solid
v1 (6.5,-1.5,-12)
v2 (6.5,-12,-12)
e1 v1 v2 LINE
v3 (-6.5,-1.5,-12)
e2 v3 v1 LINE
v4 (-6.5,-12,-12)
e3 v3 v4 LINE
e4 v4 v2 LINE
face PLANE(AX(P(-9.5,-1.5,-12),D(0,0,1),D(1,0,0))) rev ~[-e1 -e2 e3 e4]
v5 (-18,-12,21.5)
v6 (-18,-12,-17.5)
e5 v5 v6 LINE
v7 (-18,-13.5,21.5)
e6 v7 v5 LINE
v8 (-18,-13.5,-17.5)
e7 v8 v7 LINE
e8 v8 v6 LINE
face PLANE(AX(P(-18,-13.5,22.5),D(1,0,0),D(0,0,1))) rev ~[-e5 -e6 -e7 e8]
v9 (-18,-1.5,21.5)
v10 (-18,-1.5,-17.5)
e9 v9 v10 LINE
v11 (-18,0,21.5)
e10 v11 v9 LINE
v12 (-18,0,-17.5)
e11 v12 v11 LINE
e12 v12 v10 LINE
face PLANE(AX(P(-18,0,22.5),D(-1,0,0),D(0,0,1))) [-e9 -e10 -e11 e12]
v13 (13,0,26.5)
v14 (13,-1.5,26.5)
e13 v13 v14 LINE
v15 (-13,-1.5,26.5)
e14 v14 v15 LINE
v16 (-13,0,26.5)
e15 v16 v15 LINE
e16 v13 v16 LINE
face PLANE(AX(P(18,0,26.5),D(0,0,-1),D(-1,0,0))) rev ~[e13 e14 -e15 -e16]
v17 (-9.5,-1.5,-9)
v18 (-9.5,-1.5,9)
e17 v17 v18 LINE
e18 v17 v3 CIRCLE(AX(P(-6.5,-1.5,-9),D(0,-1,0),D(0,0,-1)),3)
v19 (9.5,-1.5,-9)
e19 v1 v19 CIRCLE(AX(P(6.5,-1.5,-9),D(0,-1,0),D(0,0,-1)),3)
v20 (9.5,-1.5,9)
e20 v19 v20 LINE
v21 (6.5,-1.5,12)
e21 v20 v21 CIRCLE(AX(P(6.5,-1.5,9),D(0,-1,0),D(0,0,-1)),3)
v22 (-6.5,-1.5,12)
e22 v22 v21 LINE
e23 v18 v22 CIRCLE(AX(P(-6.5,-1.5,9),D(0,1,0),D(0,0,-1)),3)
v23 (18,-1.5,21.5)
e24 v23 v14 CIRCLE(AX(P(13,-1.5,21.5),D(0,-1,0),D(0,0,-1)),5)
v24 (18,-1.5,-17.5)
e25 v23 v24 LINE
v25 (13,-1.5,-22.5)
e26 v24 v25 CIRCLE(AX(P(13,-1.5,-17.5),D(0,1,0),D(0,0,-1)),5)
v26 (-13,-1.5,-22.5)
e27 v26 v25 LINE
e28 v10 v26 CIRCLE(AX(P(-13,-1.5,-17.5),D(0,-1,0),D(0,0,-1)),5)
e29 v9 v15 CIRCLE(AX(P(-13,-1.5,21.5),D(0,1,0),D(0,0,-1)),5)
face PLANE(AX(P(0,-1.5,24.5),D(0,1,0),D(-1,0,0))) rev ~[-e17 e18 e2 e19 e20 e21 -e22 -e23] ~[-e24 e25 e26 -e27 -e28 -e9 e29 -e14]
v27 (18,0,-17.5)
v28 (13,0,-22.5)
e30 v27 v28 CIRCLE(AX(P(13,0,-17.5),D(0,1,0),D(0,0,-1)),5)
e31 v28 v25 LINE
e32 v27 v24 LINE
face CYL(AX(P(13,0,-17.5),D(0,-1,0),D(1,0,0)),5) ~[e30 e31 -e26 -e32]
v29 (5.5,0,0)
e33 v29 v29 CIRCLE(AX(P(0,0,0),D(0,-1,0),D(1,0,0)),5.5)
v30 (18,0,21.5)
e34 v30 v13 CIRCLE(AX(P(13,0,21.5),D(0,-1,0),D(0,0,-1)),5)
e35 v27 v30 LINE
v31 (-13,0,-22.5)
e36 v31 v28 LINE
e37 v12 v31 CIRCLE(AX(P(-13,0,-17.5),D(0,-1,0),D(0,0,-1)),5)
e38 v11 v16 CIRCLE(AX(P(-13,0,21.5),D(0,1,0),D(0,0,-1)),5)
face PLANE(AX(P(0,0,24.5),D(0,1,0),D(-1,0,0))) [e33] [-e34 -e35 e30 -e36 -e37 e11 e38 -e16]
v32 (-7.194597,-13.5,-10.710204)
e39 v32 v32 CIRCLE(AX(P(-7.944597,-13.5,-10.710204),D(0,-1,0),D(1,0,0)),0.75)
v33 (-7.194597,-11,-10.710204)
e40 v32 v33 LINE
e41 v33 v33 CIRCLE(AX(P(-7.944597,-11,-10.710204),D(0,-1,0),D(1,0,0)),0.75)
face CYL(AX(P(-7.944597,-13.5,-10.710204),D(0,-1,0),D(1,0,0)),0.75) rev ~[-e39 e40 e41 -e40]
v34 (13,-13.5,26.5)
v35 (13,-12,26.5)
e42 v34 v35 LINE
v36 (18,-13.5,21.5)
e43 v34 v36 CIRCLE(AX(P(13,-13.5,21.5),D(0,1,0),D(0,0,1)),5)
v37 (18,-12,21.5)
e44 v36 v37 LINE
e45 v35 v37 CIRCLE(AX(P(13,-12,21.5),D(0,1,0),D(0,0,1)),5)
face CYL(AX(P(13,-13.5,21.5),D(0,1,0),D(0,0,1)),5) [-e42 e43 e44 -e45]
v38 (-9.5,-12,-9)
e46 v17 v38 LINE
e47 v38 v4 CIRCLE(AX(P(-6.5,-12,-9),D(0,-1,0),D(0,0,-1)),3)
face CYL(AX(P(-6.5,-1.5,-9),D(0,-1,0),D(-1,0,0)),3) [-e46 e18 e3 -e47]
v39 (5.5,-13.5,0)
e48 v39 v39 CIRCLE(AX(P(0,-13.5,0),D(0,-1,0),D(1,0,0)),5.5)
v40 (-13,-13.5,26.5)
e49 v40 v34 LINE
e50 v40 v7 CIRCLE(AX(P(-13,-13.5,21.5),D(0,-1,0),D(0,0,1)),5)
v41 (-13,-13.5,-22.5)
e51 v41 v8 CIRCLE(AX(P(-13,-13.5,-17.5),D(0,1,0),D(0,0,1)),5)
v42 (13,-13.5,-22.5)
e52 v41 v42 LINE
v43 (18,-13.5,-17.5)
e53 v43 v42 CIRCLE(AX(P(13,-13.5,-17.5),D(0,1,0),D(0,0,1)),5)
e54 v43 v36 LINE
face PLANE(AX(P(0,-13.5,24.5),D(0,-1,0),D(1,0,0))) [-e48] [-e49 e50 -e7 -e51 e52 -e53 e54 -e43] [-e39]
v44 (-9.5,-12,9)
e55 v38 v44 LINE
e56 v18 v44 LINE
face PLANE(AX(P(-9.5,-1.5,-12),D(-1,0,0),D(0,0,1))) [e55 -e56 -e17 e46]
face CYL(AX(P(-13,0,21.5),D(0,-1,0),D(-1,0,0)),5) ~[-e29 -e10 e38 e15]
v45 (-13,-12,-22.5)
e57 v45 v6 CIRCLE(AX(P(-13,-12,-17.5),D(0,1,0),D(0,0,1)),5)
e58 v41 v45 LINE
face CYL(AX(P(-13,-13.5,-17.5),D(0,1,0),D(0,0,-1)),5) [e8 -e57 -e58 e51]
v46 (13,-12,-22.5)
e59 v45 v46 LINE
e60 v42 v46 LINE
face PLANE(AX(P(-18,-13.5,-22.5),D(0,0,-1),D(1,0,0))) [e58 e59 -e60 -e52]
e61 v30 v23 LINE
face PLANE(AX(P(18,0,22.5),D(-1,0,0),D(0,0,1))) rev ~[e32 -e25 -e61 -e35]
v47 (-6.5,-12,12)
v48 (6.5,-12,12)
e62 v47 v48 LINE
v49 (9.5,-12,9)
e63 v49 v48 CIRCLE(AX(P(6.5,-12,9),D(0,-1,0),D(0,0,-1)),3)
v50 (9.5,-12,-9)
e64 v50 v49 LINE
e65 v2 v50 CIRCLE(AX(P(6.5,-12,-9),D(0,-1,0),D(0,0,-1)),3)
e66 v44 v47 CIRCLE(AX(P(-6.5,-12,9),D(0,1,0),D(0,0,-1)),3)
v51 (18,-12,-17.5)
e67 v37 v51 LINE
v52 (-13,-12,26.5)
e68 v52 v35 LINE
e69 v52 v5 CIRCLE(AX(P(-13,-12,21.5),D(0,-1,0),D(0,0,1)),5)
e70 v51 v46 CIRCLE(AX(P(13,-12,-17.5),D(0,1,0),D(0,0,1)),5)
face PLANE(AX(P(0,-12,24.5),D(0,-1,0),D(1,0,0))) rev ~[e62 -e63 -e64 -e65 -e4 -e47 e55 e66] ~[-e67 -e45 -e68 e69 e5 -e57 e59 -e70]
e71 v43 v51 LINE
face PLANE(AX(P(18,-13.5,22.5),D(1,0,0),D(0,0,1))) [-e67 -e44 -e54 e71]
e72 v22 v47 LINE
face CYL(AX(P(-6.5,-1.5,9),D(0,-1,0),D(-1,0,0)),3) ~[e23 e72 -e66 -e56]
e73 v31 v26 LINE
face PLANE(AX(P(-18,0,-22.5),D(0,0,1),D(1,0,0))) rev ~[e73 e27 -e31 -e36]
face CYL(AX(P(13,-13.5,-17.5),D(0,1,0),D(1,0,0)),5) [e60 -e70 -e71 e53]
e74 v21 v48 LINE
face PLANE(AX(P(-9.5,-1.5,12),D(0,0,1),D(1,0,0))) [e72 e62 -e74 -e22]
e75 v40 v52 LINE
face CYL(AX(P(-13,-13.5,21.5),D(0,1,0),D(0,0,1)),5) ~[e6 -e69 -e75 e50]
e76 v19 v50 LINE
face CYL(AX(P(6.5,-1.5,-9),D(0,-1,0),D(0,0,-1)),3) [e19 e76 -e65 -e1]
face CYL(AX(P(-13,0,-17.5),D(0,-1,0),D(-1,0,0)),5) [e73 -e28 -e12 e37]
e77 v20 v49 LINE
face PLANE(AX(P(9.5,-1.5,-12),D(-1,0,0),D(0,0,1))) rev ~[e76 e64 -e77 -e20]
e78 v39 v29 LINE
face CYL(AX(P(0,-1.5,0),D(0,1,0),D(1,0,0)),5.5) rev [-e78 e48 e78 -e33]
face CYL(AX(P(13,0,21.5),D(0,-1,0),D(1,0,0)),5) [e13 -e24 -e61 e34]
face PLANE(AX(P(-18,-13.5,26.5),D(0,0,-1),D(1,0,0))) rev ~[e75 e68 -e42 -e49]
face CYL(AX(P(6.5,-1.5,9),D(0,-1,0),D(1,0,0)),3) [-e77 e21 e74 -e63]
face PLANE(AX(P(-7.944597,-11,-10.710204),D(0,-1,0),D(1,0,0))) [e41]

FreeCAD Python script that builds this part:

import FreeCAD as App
import Part
import Sketcher
Q = App.Units.Quantity


def edges_at(feature, points):
    """Names of the edges that pass closest to the given points."""
    edges = feature.Shape.Edges
    near = lambda p: min(range(len(edges)), key=lambda i: edges[i].distToShape(Part.Vertex(*p))[0])
    return sorted({f"Edge{near(p) + 1}" for p in points})

doc = App.newDocument("Part")
body = doc.addObject("PartDesign::Body", "Body")

# Sketch on XZ plane
sketch1 = doc.addObject("Sketcher::SketchObject", "Sketch")
body.addObject(sketch1)
sketch1.AttachmentSupport = (doc.XZ_Plane, [""])
sketch1.MapMode = "FlatFace"
sketch1.addGeometry([
    Part.LineSegment(App.Vector(-18, 22, 0), App.Vector(-18, -22, 0)),  # 0
    Part.LineSegment(App.Vector(-18, -22, 0), App.Vector(18, -22, 0)),  # 1
    Part.LineSegment(App.Vector(18, -22, 0), App.Vector(18, 22, 0)),  # 2
    Part.LineSegment(App.Vector(18, 22, 0), App.Vector(-18, 22, 0)),  # 3
    Part.Circle(App.Vector(0, 0, 0), App.Vector(0, 0, 1), 6),  # 4
], False)
sketch1.addConstraint([
    Sketcher.Constraint("Coincident", 0, 2, 1, 1),
    Sketcher.Constraint("Coincident", 1, 2, 2, 1),
    Sketcher.Constraint("Coincident", 2, 2, 3, 1),
    Sketcher.Constraint("Coincident", 3, 2, 0, 1),
    Sketcher.Constraint("Vertical", 0),
    Sketcher.Constraint("Horizontal", 1),
    Sketcher.Constraint("Vertical", 2),
    Sketcher.Constraint("Horizontal", 3),
    Sketcher.Constraint("Coincident", 4, 3, -1, 1),
    Sketcher.Constraint("Symmetric", 0, 2, 2, 2, -1, 1),
    Sketcher.Constraint("Diameter", 4, Q("11 mm")),
    Sketcher.Constraint("DistanceX", 1, 1, 1, 2, Q("36 mm")),
    Sketcher.Constraint("DistanceY", 0, 2, 0, 1, Q("45 mm")),
])
pad1 = doc.addObject("PartDesign::Pad", "Pad")
body.addObject(pad1)
pad1.Profile = sketch1
pad1.Length = 1.5

# Sketch on XZ plane
sketch2 = doc.addObject("Sketcher::SketchObject", "Sketch001")
body.addObject(sketch2)
sketch2.AttachmentSupport = (doc.XZ_Plane, [""])
sketch2.MapMode = "FlatFace"
sketch2.AttachmentOffset = App.Placement(App.Vector(0, 0, 1.5), App.Rotation())
sketch2.addGeometry([
    Part.LineSegment(App.Vector(-10, 12, 0), App.Vector(-10, -12, 0)),  # 0
    Part.LineSegment(App.Vector(-10, -12, 0), App.Vector(10, -12, 0)),  # 1
    Part.LineSegment(App.Vector(10, -12, 0), App.Vector(10, 12, 0)),  # 2
    Part.LineSegment(App.Vector(10, 12, 0), App.Vector(-10, 12, 0)),  # 3
    Part.Circle(App.Vector(0, 0, 0), App.Vector(0, 0, 1), 6),  # 4
], False)
sketch2.addConstraint([
    Sketcher.Constraint("Coincident", 0, 2, 1, 1),
    Sketcher.Constraint("Coincident", 1, 2, 2, 1),
    Sketcher.Constraint("Coincident", 2, 2, 3, 1),
    Sketcher.Constraint("Coincident", 3, 2, 0, 1),
    Sketcher.Constraint("Vertical", 0),
    Sketcher.Constraint("Horizontal", 1),
    Sketcher.Constraint("Vertical", 2),
    Sketcher.Constraint("Horizontal", 3),
    Sketcher.Constraint("Coincident", 4, 3, -1, 1),
    Sketcher.Constraint("Symmetric", 0, 2, 2, 2, -1, 1),
    Sketcher.Constraint("Diameter", 4, Q("11 mm")),
    Sketcher.Constraint("DistanceX", 1, 1, 1, 2, Q("19 mm")),
    Sketcher.Constraint("DistanceY", 0, 2, 0, 1, Q("24 mm")),
])
pad2 = doc.addObject("PartDesign::Pad", "Pad001")
body.addObject(pad2)
pad2.Profile = sketch2
pad2.Length = 12

# Sketch on XZ plane
sketch3 = doc.addObject("Sketcher::SketchObject", "Sketch002")
body.addObject(sketch3)
sketch3.AttachmentSupport = (doc.XZ_Plane, [""])
sketch3.MapMode = "FlatFace"
sketch3.AttachmentOffset = App.Placement(App.Vector(0, 0, 13.5), App.Rotation())
sketch3.addGeometry([
    Part.LineSegment(App.Vector(-18, 22, 0), App.Vector(-18, -22, 0)),  # 0
    Part.LineSegment(App.Vector(-18, -22, 0), App.Vector(18, -22, 0)),  # 1
    Part.LineSegment(App.Vector(18, -22, 0), App.Vector(18, 22, 0)),  # 2
    Part.LineSegment(App.Vector(18, 22, 0), App.Vector(-18, 22, 0)),  # 3
    Part.Circle(App.Vector(0, 0, 0), App.Vector(0, 0, 1), 6),  # 4
], False)
sketch3.addConstraint([
    Sketcher.Constraint("Coincident", 0, 2, 1, 1),
    Sketcher.Constraint("Coincident", 1, 2, 2, 1),
    Sketcher.Constraint("Coincident", 2, 2, 3, 1),
    Sketcher.Constraint("Coincident", 3, 2, 0, 1),
    Sketcher.Constraint("Vertical", 0),
    Sketcher.Constraint("Horizontal", 1),
    Sketcher.Constraint("Vertical", 2),
    Sketcher.Constraint("Horizontal", 3),
    Sketcher.Constraint("Coincident", 4, 3, -1, 1),
    Sketcher.Constraint("Symmetric", 0, 2, 2, 2, -1, 1),
    Sketcher.Constraint("Diameter", 4, Q("11 mm")),
    Sketcher.Constraint("DistanceX", 1, 1, 1, 2, Q("36 mm")),
    Sketcher.Constraint("DistanceY", 0, 2, 0, 1, Q("45 mm")),
])
pad3 = doc.addObject("PartDesign::Pad", "Pad002")
body.addObject(pad3)
pad3.Profile = sketch3
pad3.Length = 1.5
pad3.Reversed = True

# Sketch on XZ plane
sketch4 = doc.addObject("Sketcher::SketchObject", "Sketch003")
body.addObject(sketch4)
sketch4.AttachmentSupport = (doc.XZ_Plane, [""])
sketch4.MapMode = "FlatFace"
sketch4.AttachmentOffset = App.Placement(App.Vector(0, 0, 13.5), App.Rotation())
sketch4.addGeometry(Part.Circle(App.Vector(-7.9, -10.7, 0), App.Vector(0, 0, 1), 0.8), False)
sketch4.addConstraint([
    Sketcher.Constraint("Diameter", 0, Q("1.5 mm")),
    Sketcher.Constraint("DistanceX", 0, 3, -1, 1, Q("7.944597 mm")),
    Sketcher.Constraint("DistanceY", 0, 3, -1, 1, Q("10.710204 mm")),
])
pocket1 = doc.addObject("PartDesign::Pocket", "Pocket")
body.addObject(pocket1)
pocket1.Profile = sketch4
pocket1.Length = 2.5

# Sketch on XZ plane
sketch5 = doc.addObject("Sketcher::SketchObject", "Sketch004")
body.addObject(sketch5)
sketch5.AttachmentSupport = (doc.XZ_Plane, [""])
sketch5.MapMode = "FlatFace"
sketch5.AttachmentOffset = App.Placement(App.Vector(0, 0, 13.5), App.Rotation())
sketch5.addGeometry([
    Part.LineSegment(App.Vector(-18, 26.5, 0), App.Vector(-18, 22.5, 0)),
    Part.LineSegment(App.Vector(-18, 22.5, 0), App.Vector(18, 22.5, 0)),
    Part.LineSegment(App.Vector(18, 22.5, 0), App.Vector(18, 26.5, 0)),
    Part.LineSegment(App.Vector(18, 26.5, 0), App.Vector(-18, 26.5, 0)),
], False)
sketch5.addConstraint([
    Sketcher.Constraint("Coincident", 0, 2, 1, 1),
    Sketcher.Constraint("Coincident", 1, 2, 2, 1),
    Sketcher.Constraint("Coincident", 2, 2, 3, 1),
    Sketcher.Constraint("Coincident", 3, 2, 0, 1),
    Sketcher.Constraint("Vertical", 0),
    Sketcher.Constraint("Horizontal", 1),
    Sketcher.Constraint("Vertical", 2),
    Sketcher.Constraint("Horizontal", 3),
    Sketcher.Constraint("DistanceX", 1, 1, 1, 2, Q("36 mm")),
    Sketcher.Constraint("DistanceY", 0, 2, 0, 1, Q("4 mm")),
    Sketcher.Constraint("DistanceX", 0, 2, -1, 1, Q("18 mm")),
    Sketcher.Constraint("DistanceY", -1, 1, 0, 2, Q("22.5 mm")),
])
pad4 = doc.addObject("PartDesign::Pad", "Pad003")
body.addObject(pad4)
pad4.Profile = sketch5
pad4.Length = 1.5
pad4.Reversed = True

# Sketch on XZ plane
sketch6 = doc.addObject("Sketcher::SketchObject", "Sketch005")
body.addObject(sketch6)
sketch6.AttachmentSupport = (doc.XZ_Plane, [""])
sketch6.MapMode = "FlatFace"
sketch6.addGeometry([
    Part.LineSegment(App.Vector(18, 26.5, 0), App.Vector(18, 22.5, 0)),
    Part.LineSegment(App.Vector(18, 22.5, 0), App.Vector(-18, 22.5, 0)),
    Part.LineSegment(App.Vector(-18, 22.5, 0), App.Vector(-18, 26.5, 0)),
    Part.LineSegment(App.Vector(-18, 26.5, 0), App.Vector(18, 26.5, 0)),
], False)
sketch6.addConstraint([
    Sketcher.Constraint("Coincident", 0, 2, 1, 1),
    Sketcher.Constraint("Coincident", 1, 2, 2, 1),
    Sketcher.Constraint("Coincident", 2, 2, 3, 1),
    Sketcher.Constraint("Coincident", 3, 2, 0, 1),
    Sketcher.Constraint("Vertical", 0),
    Sketcher.Constraint("Horizontal", 1),
    Sketcher.Constraint("Vertical", 2),
    Sketcher.Constraint("Horizontal", 3),
    Sketcher.Constraint("DistanceX", 1, 2, 1, 1, Q("36 mm")),
    Sketcher.Constraint("DistanceY", 0, 2, 0, 1, Q("4 mm")),
    Sketcher.Constraint("DistanceX", -1, 1, 0, 2, Q("18 mm")),
    Sketcher.Constraint("DistanceY", -1, 1, 0, 2, Q("22.5 mm")),
])
pad5 = doc.addObject("PartDesign::Pad", "Pad004")
body.addObject(pad5)
pad5.Profile = sketch6
pad5.Length = 1.5
doc.recompute()

fillet = doc.addObject("PartDesign::Fillet", "Fillet")
body.addObject(fillet)
fillet.Base = (pad5, edges_at(pad5, [
    (18, -12.75, 26.5),
    (18, -0.75, 26.5),
    (18, -0.75, -22.5),
    (18, -12.75, -22.5),
    (-18, -0.75, -22.5),
    (-18, -12.75, -22.5),
    (-18, -0.75, 26.5),
    (-18, -12.75, 26.5),
]))
fillet.Radius = 5
doc.recompute()

fillet2 = doc.addObject("PartDesign::Fillet", "Fillet001")
body.addObject(fillet2)
fillet2.Base = (fillet, edges_at(fillet, [
    (-9.5, -6.75, 12),
    (9.5, -6.75, 12),
    (9.5, -6.75, -12),
    (-9.5, -6.75, -12),
]))
fillet2.Radius = 3

doc.recompute()
